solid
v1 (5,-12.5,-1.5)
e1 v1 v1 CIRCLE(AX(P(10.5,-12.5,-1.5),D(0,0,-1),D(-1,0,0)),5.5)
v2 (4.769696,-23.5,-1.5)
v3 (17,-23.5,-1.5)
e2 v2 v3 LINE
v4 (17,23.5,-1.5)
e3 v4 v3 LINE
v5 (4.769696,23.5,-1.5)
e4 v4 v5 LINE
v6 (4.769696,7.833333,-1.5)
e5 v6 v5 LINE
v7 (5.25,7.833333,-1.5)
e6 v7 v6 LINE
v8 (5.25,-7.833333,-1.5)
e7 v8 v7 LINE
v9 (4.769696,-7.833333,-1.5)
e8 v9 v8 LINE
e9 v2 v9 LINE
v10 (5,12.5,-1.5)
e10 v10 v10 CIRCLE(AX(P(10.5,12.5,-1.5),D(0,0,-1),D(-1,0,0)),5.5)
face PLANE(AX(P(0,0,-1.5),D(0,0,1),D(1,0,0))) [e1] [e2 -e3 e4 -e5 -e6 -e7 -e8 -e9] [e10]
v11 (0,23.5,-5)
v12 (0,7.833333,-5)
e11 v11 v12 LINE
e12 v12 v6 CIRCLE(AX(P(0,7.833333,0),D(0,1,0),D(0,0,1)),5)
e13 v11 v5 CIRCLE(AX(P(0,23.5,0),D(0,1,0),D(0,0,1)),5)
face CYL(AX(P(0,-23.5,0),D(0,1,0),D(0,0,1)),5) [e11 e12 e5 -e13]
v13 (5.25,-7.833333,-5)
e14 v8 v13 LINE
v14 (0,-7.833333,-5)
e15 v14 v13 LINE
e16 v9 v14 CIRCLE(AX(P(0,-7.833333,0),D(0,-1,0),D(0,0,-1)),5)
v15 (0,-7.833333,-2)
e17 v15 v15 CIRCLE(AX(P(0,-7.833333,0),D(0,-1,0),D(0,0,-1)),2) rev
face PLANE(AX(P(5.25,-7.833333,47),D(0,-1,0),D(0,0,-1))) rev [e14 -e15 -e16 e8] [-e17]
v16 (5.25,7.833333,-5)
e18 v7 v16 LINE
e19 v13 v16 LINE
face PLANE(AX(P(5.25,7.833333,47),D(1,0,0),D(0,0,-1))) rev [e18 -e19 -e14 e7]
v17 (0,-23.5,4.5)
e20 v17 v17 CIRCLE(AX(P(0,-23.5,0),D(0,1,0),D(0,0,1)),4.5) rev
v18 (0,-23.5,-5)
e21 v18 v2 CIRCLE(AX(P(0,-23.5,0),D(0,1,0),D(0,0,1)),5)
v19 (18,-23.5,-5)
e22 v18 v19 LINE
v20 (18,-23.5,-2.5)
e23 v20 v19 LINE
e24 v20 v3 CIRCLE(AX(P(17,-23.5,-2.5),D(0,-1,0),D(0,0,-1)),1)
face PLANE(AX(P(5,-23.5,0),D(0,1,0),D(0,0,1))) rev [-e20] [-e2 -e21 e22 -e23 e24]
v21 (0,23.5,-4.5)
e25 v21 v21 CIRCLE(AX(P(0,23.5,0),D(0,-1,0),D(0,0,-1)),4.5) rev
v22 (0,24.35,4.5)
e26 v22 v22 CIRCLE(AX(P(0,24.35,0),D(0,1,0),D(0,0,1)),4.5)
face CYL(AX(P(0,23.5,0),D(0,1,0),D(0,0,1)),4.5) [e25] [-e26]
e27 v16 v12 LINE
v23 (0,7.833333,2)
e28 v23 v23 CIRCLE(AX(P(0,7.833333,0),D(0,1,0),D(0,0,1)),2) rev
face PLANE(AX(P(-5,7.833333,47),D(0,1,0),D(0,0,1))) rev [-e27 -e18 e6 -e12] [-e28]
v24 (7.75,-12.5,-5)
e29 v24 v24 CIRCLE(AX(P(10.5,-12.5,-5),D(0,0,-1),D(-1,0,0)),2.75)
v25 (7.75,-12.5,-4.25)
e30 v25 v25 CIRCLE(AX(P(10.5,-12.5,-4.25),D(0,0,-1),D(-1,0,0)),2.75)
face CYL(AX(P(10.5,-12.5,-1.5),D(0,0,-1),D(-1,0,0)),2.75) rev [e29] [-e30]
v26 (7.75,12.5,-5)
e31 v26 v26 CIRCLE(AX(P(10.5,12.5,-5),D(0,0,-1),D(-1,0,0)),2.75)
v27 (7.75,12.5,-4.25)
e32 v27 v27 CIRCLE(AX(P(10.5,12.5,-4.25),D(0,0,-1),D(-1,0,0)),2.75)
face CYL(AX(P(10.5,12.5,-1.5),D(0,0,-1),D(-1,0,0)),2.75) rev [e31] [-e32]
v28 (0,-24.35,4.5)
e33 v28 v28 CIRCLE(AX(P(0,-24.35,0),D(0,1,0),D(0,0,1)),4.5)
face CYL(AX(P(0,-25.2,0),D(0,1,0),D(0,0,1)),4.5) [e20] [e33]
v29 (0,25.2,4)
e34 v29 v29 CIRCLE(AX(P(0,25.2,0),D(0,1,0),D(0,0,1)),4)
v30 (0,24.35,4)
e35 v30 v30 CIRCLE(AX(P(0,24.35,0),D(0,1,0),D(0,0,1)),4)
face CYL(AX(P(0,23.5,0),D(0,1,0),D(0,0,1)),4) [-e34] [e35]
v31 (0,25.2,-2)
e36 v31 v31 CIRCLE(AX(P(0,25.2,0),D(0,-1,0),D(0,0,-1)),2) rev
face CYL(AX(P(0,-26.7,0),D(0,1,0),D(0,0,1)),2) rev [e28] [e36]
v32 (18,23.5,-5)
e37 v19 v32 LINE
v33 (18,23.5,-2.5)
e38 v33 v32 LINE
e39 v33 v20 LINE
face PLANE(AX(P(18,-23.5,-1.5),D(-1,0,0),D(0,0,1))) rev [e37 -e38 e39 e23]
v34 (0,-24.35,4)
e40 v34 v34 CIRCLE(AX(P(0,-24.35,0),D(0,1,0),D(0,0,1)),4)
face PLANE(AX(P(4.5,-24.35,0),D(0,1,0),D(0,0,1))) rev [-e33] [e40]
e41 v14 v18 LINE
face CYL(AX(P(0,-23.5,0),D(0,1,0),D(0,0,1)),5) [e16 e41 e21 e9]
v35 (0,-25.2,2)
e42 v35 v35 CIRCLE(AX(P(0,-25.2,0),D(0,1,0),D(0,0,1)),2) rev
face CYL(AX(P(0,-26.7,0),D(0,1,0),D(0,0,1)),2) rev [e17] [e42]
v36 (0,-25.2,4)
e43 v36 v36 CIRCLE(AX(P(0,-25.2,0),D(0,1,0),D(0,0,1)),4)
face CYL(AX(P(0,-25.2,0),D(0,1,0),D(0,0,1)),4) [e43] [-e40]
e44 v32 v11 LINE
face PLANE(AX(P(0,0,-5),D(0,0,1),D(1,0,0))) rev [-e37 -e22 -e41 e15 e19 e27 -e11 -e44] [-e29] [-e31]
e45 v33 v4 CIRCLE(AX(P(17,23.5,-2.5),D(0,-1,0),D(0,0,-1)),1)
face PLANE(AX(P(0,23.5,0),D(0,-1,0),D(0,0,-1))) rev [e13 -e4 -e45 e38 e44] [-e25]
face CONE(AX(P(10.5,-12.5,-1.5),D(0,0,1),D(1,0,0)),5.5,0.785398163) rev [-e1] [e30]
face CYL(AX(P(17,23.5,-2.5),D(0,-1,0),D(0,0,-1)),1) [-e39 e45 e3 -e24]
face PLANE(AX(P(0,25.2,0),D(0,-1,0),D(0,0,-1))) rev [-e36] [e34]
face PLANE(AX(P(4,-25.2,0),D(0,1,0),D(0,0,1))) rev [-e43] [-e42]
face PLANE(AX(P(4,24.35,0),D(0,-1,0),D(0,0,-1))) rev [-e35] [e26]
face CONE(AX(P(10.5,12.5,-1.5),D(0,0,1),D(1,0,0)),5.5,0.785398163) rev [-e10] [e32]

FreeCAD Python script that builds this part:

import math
import FreeCAD as App
import Part
import Sketcher
from FreeCAD import Vector
Q = App.Units.Quantity


def add_polygon(sketch, points):
    """Adds a closed chain of lines whose ends are joined by coincident constraints."""
    first, n = sketch.GeometryCount, len(points)
    for a, b in zip(points, points[1:] + points[:1]):
        sketch.addGeometry(Part.LineSegment(App.Vector(*a, 0), App.Vector(*b, 0)), False)
    for i in range(n):
        sketch.addConstraint(Sketcher.Constraint("Coincident", first + i, 2, first + (i + 1) % n, 1))

doc = App.newDocument("Part")
body = doc.addObject("PartDesign::Body", "Body")

# Sketch on XY plane
sketch1 = body.newObject("Sketcher::SketchObject", "Sketch")
sketch1.AttachmentSupport = (doc.getObject("XY_Plane"), [""])
sketch1.MapMode = "FlatFace"
add_polygon(sketch1, [(0, 24), (0, -24), (5, -24), (5, 24)])  # lines 0-3
sketch1.addConstraint(Sketcher.Constraint("Vertical", 0))
sketch1.addConstraint(Sketcher.Constraint("Horizontal", 1))
sketch1.addConstraint(Sketcher.Constraint("Vertical", 2))
sketch1.addConstraint(Sketcher.Constraint("Horizontal", 3))
sketch1.addConstraint(Sketcher.Constraint("Symmetric", 0, 2, 3, 2, -1, 1))
sketch1.addConstraint(Sketcher.Constraint("DistanceX", 1, 1, 1, 2, Q("5 mm")))
sketch1.addConstraint(Sketcher.Constraint("DistanceY", 0, 2, 0, 1, Q("47 mm")))
revolution = body.newObject("PartDesign::Revolution", "Revolution")
revolution.Profile = sketch1
revolution.ReferenceAxis = (sketch1, ["V_Axis"])
revolution.Angle = 360

# Sketch on XY plane
sketch2 = body.newObject("Sketcher::SketchObject", "Sketch001")
sketch2.AttachmentSupport = (doc.getObject("XY_Plane"), [""])
sketch2.MapMode = "FlatFace"
sketch2.AttachmentOffset = App.Placement(Vector(0, 0, -5), App.Rotation())
add_polygon(sketch2, [(0, 24), (0, -24), (18, -24), (18, 24)])  # lines 0-3
sketch2.addConstraint(Sketcher.Constraint("Vertical", 0))
sketch2.addConstraint(Sketcher.Constraint("Horizontal", 1))
sketch2.addConstraint(Sketcher.Constraint("Vertical", 2))
sketch2.addConstraint(Sketcher.Constraint("Horizontal", 3))
sketch2.addConstraint(Sketcher.Constraint("Symmetric", 0, 2, 3, 2, -1, 1))
sketch2.addConstraint(Sketcher.Constraint("DistanceX", 1, 1, 1, 2, Q("18 mm")))
sketch2.addConstraint(Sketcher.Constraint("DistanceY", 0, 2, 0, 1, Q("47 mm")))
pad1 = body.newObject("PartDesign::Pad", "Pad")
pad1.Profile = sketch2
pad1.Length = 3.5

# Sketch on XY plane
sketch3 = body.newObject("Sketcher::SketchObject", "Sketch002")
sketch3.AttachmentSupport = (doc.getObject("XY_Plane"), [""])
sketch3.MapMode = "FlatFace"
add_polygon(sketch3, [(-47, 47), (-47, -47), (47, -47), (47, 47)])  # lines 0-3
add_polygon(sketch3, [(5, 8), (-5, 8), (-5, 24), (18, 24), (18, -24), (-5, -24), (-5, -8), (5, -8)])  # lines 4-11
sketch3.addConstraint(Sketcher.Constraint("Vertical", 0))
sketch3.addConstraint(Sketcher.Constraint("Horizontal", 1))
sketch3.addConstraint(Sketcher.Constraint("Vertical", 2))
sketch3.addConstraint(Sketcher.Constraint("Horizontal", 3))
sketch3.addConstraint(Sketcher.Constraint("Horizontal", 4))
sketch3.addConstraint(Sketcher.Constraint("Vertical", 5))
sketch3.addConstraint(Sketcher.Constraint("Horizontal", 6))
sketch3.addConstraint(Sketcher.Constraint("Vertical", 7))
sketch3.addConstraint(Sketcher.Constraint("Horizontal", 8))
sketch3.addConstraint(Sketcher.Constraint("Vertical", 9))
sketch3.addConstraint(Sketcher.Constraint("Horizontal", 10))
sketch3.addConstraint(Sketcher.Constraint("Vertical", 11))
sketch3.addConstraint(Sketcher.Constraint("Symmetric", 0, 2, 2, 2, -1, 1))
sketch3.addConstraint(Sketcher.Constraint("Symmetric", 5, 2, 8, 2, -1))
sketch3.addConstraint(Sketcher.Constraint("Equal", 3, 0))
sketch3.addConstraint(Sketcher.Constraint("Equal", 5, 9))
sketch3.addConstraint(Sketcher.Constraint("Equal", 9, 11))
sketch3.addConstraint(Sketcher.Constraint("DistanceX", 1, 1, 1, 2, Q("94 mm")))
sketch3.addConstraint(Sketcher.Constraint("DistanceX", 6, 1, 6, 2, Q("23 mm")))
sketch3.addConstraint(Sketcher.Constraint("DistanceY", 7, 2, 7, 1, Q("47 mm")))
sketch3.addConstraint(Sketcher.Constraint("DistanceX", 4, 2, -1, 1, Q("5 mm")))
sketch3.addConstraint(Sketcher.Constraint("DistanceX", 4, 2, 4, 1, Q("10.25 mm")))
pocket1 = body.newObject("PartDesign::Pocket", "Pocket")
pocket1.Profile = sketch3
pocket1.Type = "ThroughAll"
pocket1.Midplane = True

# Sketch on XY plane
sketch4 = body.newObject("Sketcher::SketchObject", "Sketch003")
sketch4.AttachmentSupport = (doc.getObject("XY_Plane"), [""])
sketch4.MapMode = "FlatFace"
add_polygon(sketch4, [(4, 25.2), (0, 25.2), (0, 23.5), (4.5, 23.5), (4.5, 24.4), (4, 24.4)])  # lines 0-5
sketch4.addConstraint(Sketcher.Constraint("Horizontal", 0))
sketch4.addConstraint(Sketcher.Constraint("Vertical", 1))
sketch4.addConstraint(Sketcher.Constraint("Horizontal", 2))
sketch4.addConstraint(Sketcher.Constraint("Vertical", 3))
sketch4.addConstraint(Sketcher.Constraint("Horizontal", 4))
sketch4.addConstraint(Sketcher.Constraint("Vertical", 5))
sketch4.addConstraint(Sketcher.Constraint("PointOnObject", 0, 2, -2))
sketch4.addConstraint(Sketcher.Constraint("Equal", 3, 5))
sketch4.addConstraint(Sketcher.Constraint("DistanceX", 0, 2, 0, 1, Q("4 mm")))
sketch4.addConstraint(Sketcher.Constraint("DistanceX", 2, 1, 2, 2, Q("4.5 mm")))
sketch4.addConstraint(Sketcher.Constraint("DistanceY", 1, 2, 1, 1, Q("1.7 mm")))
sketch4.addConstraint(Sketcher.Constraint("DistanceY", -1, 1, 0, 2, Q("25.2 mm")))
revolution2 = body.newObject("PartDesign::Revolution", "Revolution001")
revolution2.Profile = sketch4
revolution2.ReferenceAxis = (sketch4, ["V_Axis"])
revolution2.Angle = 360

# Sketch on XY plane
sketch5 = body.newObject("Sketcher::SketchObject", "Sketch004")
sketch5.AttachmentSupport = (doc.getObject("XY_Plane"), [""])
sketch5.MapMode = "FlatFace"
add_polygon(sketch5, [(4.5, -23.5), (0, -23.5), (0, -25.2), (4, -25.2), (4, -24.4), (4.5, -24.4)])  # lines 0-5
sketch5.addConstraint(Sketcher.Constraint("Horizontal", 0))
sketch5.addConstraint(Sketcher.Constraint("Vertical", 1))
sketch5.addConstraint(Sketcher.Constraint("Horizontal", 2))
sketch5.addConstraint(Sketcher.Constraint("Vertical", 3))
sketch5.addConstraint(Sketcher.Constraint("Horizontal", 4))
sketch5.addConstraint(Sketcher.Constraint("Vertical", 5))
sketch5.addConstraint(Sketcher.Constraint("PointOnObject", 0, 2, -2))
sketch5.addConstraint(Sketcher.Constraint("Equal", 3, 5))
sketch5.addConstraint(Sketcher.Constraint("DistanceX", 2, 1, 2, 2, Q("4 mm")))
sketch5.addConstraint(Sketcher.Constraint("DistanceX", 0, 2, 0, 1, Q("4.5 mm")))
sketch5.addConstraint(Sketcher.Constraint("DistanceY", 1, 2, 1, 1, Q("1.7 mm")))
sketch5.addConstraint(Sketcher.Constraint("DistanceY", 0, 2, -1, 1, Q("23.5 mm")))
revolution3 = body.newObject("PartDesign::Revolution", "Revolution002")
revolution3.Profile = sketch5
revolution3.ReferenceAxis = (sketch5, ["V_Axis"])
revolution3.Angle = 360

# Sketch on XY plane
sketch6 = body.newObject("Sketcher::SketchObject", "Sketch005")
sketch6.AttachmentSupport = (doc.getObject("XY_Plane"), [""])
sketch6.MapMode = "FlatFace"
add_polygon(sketch6, [(0, 26.7), (0, -26.7), (2, -26.7), (2, 26.7)])  # lines 0-3
sketch6.addConstraint(Sketcher.Constraint("Vertical", 0))
sketch6.addConstraint(Sketcher.Constraint("Horizontal", 1))
sketch6.addConstraint(Sketcher.Constraint("Vertical", 2))
sketch6.addConstraint(Sketcher.Constraint("Horizontal", 3))
sketch6.addConstraint(Sketcher.Constraint("Symmetric", 0, 2, 3, 2, -1, 1))
sketch6.addConstraint(Sketcher.Constraint("DistanceX", 1, 1, 1, 2, Q("2 mm")))
sketch6.addConstraint(Sketcher.Constraint("DistanceY", 0, 2, 0, 1, Q("53.4 mm")))
groove = body.newObject("PartDesign::Groove", "Groove")
groove.Profile = sketch6
groove.ReferenceAxis = (sketch6, ["V_Axis"])
groove.Angle = 360

# Sketch on YZ plane
sketch7 = body.newObject("Sketcher::SketchObject", "Sketch006")
sketch7.AttachmentSupport = (doc.getObject("YZ_Plane"), [""])
sketch7.MapMode = "FlatFace"
sketch7.AttachmentOffset = App.Placement(Vector(0, 0, 10.5), App.Rotation())
add_polygon(sketch7, [(-15.2, -5), (-12.5, -5), (-12.5, -1.5), (-18, -1.5), (-15.2, -4.2)])  # lines 0-4
sketch7.addGeometry(Part.LineSegment(Vector(-12.5, -1.5, 0), Vector(-12.5, -5, 0)), True)  # axis
sketch7.addConstraint(Sketcher.Constraint("Horizontal", 0))
sketch7.addConstraint(Sketcher.Constraint("Vertical", 1))
sketch7.addConstraint(Sketcher.Constraint("Horizontal", 2))
sketch7.addConstraint(Sketcher.Constraint("Vertical", 4))
sketch7.addConstraint(Sketcher.Constraint("Vertical", 5))
sketch7.addConstraint(Sketcher.Constraint("Coincident", 5, 1, 1, 2))
sketch7.addConstraint(Sketcher.Constraint("Horizontal", 4, 2, 5, 2))
sketch7.addConstraint(Sketcher.Constraint("Angle", 3, Q("-45 deg")))
sketch7.addConstraint(Sketcher.Constraint("DistanceX", 2, 2, 2, 1, Q("5.5 mm")))
sketch7.addConstraint(Sketcher.Constraint("DistanceY", 1, 1, 1, 2, Q("3.5 mm")))
sketch7.addConstraint(Sketcher.Constraint("DistanceY", 0, 2, -1, 1, Q("5 mm")))
sketch7.addConstraint(Sketcher.Constraint("DistanceX", 2, 2, -1, 1, Q("18 mm")))
sketch7.addConstraint(Sketcher.Constraint("DistanceX", 0, 1, 0, 2, Q("2.75 mm")))
groove2 = body.newObject("PartDesign::Groove", "Groove001")
groove2.Profile = sketch7
groove2.ReferenceAxis = (sketch7, ["Axis0"])
groove2.Angle = 360

# Sketch on YZ plane
sketch8 = body.newObject("Sketcher::SketchObject", "Sketch007")
sketch8.AttachmentSupport = (doc.getObject("YZ_Plane"), [""])
sketch8.MapMode = "FlatFace"
sketch8.AttachmentOffset = App.Placement(Vector(0, 0, 10.5), App.Rotation())
add_polygon(sketch8, [(9.8, -5), (12.5, -5), (12.5, -1.5), (7, -1.5), (9.8, -4.2)])  # lines 0-4
sketch8.addGeometry(Part.LineSegment(Vector(12.5, -1.5, 0), Vector(12.5, -5, 0)), True)  # axis
sketch8.addConstraint(Sketcher.Constraint("Horizontal", 0))
sketch8.addConstraint(Sketcher.Constraint("Vertical", 1))
sketch8.addConstraint(Sketcher.Constraint("Horizontal", 2))
sketch8.addConstraint(Sketcher.Constraint("Vertical", 4))
sketch8.addConstraint(Sketcher.Constraint("Vertical", 5))
sketch8.addConstraint(Sketcher.Constraint("Coincident", 5, 1, 1, 2))
sketch8.addConstraint(Sketcher.Constraint("Horizontal", 4, 2, 5, 2))
sketch8.addConstraint(Sketcher.Constraint("Angle", 3, Q("-45 deg")))
sketch8.addConstraint(Sketcher.Constraint("DistanceX", 2, 2, 2, 1, Q("5.5 mm")))
sketch8.addConstraint(Sketcher.Constraint("DistanceY", 1, 1, 1, 2, Q("3.5 mm")))
sketch8.addConstraint(Sketcher.Constraint("DistanceY", 0, 2, -1, 1, Q("5 mm")))
sketch8.addConstraint(Sketcher.Constraint("DistanceX", -1, 1, 2, 2, Q("7 mm")))
sketch8.addConstraint(Sketcher.Constraint("DistanceX", 0, 1, 0, 2, Q("2.75 mm")))
groove3 = body.newObject("PartDesign::Groove", "Groove002")
groove3.Profile = sketch8
groove3.ReferenceAxis = (sketch8, ["Axis0"])
groove3.Angle = 360

# Sketch on XZ plane
sketch9 = body.newObject("Sketcher::SketchObject", "Sketch008")
sketch9.AttachmentSupport = (doc.getObject("XZ_Plane"), [""])
sketch9.MapMode = "FlatFace"
sketch9.addGeometry(Part.LineSegment(Vector(17, -1.5, 0), Vector(18, -1.5, 0)), False)
sketch9.addGeometry(Part.LineSegment(Vector(18, -1.5, 0), Vector(18, -2.5, 0)), False)
sketch9.addGeometry(Part.ArcOfCircle(Part.Circle(Vector(17, -2.5, 0), Vector(0, 0, 1), 1), math.radians(0), math.radians(90)), False)
sketch9.addConstraint(Sketcher.Constraint("Coincident", 0, 2, 1, 1))
sketch9.addConstraint(Sketcher.Constraint("Tangent", 1, 2, 2, 1))
sketch9.addConstraint(Sketcher.Constraint("Tangent", 2, 2, 0, 1))
sketch9.addConstraint(Sketcher.Constraint("Horizontal", 0))
sketch9.addConstraint(Sketcher.Constraint("Vertical", 1))
sketch9.addConstraint(Sketcher.Constraint("Radius", 2, Q("1 mm")))
sketch9.addConstraint(Sketcher.Constraint("DistanceX", -1, 1, 2, 3, Q("17 mm")))
sketch9.addConstraint(Sketcher.Constraint("DistanceY", 2, 3, -1, 1, Q("2.5 mm")))
pocket2 = body.newObject("PartDesign::Pocket", "Pocket001")
pocket2.Profile = sketch9
pocket2.Type = "ThroughAll"
pocket2.Midplane = True

doc.recompute()
